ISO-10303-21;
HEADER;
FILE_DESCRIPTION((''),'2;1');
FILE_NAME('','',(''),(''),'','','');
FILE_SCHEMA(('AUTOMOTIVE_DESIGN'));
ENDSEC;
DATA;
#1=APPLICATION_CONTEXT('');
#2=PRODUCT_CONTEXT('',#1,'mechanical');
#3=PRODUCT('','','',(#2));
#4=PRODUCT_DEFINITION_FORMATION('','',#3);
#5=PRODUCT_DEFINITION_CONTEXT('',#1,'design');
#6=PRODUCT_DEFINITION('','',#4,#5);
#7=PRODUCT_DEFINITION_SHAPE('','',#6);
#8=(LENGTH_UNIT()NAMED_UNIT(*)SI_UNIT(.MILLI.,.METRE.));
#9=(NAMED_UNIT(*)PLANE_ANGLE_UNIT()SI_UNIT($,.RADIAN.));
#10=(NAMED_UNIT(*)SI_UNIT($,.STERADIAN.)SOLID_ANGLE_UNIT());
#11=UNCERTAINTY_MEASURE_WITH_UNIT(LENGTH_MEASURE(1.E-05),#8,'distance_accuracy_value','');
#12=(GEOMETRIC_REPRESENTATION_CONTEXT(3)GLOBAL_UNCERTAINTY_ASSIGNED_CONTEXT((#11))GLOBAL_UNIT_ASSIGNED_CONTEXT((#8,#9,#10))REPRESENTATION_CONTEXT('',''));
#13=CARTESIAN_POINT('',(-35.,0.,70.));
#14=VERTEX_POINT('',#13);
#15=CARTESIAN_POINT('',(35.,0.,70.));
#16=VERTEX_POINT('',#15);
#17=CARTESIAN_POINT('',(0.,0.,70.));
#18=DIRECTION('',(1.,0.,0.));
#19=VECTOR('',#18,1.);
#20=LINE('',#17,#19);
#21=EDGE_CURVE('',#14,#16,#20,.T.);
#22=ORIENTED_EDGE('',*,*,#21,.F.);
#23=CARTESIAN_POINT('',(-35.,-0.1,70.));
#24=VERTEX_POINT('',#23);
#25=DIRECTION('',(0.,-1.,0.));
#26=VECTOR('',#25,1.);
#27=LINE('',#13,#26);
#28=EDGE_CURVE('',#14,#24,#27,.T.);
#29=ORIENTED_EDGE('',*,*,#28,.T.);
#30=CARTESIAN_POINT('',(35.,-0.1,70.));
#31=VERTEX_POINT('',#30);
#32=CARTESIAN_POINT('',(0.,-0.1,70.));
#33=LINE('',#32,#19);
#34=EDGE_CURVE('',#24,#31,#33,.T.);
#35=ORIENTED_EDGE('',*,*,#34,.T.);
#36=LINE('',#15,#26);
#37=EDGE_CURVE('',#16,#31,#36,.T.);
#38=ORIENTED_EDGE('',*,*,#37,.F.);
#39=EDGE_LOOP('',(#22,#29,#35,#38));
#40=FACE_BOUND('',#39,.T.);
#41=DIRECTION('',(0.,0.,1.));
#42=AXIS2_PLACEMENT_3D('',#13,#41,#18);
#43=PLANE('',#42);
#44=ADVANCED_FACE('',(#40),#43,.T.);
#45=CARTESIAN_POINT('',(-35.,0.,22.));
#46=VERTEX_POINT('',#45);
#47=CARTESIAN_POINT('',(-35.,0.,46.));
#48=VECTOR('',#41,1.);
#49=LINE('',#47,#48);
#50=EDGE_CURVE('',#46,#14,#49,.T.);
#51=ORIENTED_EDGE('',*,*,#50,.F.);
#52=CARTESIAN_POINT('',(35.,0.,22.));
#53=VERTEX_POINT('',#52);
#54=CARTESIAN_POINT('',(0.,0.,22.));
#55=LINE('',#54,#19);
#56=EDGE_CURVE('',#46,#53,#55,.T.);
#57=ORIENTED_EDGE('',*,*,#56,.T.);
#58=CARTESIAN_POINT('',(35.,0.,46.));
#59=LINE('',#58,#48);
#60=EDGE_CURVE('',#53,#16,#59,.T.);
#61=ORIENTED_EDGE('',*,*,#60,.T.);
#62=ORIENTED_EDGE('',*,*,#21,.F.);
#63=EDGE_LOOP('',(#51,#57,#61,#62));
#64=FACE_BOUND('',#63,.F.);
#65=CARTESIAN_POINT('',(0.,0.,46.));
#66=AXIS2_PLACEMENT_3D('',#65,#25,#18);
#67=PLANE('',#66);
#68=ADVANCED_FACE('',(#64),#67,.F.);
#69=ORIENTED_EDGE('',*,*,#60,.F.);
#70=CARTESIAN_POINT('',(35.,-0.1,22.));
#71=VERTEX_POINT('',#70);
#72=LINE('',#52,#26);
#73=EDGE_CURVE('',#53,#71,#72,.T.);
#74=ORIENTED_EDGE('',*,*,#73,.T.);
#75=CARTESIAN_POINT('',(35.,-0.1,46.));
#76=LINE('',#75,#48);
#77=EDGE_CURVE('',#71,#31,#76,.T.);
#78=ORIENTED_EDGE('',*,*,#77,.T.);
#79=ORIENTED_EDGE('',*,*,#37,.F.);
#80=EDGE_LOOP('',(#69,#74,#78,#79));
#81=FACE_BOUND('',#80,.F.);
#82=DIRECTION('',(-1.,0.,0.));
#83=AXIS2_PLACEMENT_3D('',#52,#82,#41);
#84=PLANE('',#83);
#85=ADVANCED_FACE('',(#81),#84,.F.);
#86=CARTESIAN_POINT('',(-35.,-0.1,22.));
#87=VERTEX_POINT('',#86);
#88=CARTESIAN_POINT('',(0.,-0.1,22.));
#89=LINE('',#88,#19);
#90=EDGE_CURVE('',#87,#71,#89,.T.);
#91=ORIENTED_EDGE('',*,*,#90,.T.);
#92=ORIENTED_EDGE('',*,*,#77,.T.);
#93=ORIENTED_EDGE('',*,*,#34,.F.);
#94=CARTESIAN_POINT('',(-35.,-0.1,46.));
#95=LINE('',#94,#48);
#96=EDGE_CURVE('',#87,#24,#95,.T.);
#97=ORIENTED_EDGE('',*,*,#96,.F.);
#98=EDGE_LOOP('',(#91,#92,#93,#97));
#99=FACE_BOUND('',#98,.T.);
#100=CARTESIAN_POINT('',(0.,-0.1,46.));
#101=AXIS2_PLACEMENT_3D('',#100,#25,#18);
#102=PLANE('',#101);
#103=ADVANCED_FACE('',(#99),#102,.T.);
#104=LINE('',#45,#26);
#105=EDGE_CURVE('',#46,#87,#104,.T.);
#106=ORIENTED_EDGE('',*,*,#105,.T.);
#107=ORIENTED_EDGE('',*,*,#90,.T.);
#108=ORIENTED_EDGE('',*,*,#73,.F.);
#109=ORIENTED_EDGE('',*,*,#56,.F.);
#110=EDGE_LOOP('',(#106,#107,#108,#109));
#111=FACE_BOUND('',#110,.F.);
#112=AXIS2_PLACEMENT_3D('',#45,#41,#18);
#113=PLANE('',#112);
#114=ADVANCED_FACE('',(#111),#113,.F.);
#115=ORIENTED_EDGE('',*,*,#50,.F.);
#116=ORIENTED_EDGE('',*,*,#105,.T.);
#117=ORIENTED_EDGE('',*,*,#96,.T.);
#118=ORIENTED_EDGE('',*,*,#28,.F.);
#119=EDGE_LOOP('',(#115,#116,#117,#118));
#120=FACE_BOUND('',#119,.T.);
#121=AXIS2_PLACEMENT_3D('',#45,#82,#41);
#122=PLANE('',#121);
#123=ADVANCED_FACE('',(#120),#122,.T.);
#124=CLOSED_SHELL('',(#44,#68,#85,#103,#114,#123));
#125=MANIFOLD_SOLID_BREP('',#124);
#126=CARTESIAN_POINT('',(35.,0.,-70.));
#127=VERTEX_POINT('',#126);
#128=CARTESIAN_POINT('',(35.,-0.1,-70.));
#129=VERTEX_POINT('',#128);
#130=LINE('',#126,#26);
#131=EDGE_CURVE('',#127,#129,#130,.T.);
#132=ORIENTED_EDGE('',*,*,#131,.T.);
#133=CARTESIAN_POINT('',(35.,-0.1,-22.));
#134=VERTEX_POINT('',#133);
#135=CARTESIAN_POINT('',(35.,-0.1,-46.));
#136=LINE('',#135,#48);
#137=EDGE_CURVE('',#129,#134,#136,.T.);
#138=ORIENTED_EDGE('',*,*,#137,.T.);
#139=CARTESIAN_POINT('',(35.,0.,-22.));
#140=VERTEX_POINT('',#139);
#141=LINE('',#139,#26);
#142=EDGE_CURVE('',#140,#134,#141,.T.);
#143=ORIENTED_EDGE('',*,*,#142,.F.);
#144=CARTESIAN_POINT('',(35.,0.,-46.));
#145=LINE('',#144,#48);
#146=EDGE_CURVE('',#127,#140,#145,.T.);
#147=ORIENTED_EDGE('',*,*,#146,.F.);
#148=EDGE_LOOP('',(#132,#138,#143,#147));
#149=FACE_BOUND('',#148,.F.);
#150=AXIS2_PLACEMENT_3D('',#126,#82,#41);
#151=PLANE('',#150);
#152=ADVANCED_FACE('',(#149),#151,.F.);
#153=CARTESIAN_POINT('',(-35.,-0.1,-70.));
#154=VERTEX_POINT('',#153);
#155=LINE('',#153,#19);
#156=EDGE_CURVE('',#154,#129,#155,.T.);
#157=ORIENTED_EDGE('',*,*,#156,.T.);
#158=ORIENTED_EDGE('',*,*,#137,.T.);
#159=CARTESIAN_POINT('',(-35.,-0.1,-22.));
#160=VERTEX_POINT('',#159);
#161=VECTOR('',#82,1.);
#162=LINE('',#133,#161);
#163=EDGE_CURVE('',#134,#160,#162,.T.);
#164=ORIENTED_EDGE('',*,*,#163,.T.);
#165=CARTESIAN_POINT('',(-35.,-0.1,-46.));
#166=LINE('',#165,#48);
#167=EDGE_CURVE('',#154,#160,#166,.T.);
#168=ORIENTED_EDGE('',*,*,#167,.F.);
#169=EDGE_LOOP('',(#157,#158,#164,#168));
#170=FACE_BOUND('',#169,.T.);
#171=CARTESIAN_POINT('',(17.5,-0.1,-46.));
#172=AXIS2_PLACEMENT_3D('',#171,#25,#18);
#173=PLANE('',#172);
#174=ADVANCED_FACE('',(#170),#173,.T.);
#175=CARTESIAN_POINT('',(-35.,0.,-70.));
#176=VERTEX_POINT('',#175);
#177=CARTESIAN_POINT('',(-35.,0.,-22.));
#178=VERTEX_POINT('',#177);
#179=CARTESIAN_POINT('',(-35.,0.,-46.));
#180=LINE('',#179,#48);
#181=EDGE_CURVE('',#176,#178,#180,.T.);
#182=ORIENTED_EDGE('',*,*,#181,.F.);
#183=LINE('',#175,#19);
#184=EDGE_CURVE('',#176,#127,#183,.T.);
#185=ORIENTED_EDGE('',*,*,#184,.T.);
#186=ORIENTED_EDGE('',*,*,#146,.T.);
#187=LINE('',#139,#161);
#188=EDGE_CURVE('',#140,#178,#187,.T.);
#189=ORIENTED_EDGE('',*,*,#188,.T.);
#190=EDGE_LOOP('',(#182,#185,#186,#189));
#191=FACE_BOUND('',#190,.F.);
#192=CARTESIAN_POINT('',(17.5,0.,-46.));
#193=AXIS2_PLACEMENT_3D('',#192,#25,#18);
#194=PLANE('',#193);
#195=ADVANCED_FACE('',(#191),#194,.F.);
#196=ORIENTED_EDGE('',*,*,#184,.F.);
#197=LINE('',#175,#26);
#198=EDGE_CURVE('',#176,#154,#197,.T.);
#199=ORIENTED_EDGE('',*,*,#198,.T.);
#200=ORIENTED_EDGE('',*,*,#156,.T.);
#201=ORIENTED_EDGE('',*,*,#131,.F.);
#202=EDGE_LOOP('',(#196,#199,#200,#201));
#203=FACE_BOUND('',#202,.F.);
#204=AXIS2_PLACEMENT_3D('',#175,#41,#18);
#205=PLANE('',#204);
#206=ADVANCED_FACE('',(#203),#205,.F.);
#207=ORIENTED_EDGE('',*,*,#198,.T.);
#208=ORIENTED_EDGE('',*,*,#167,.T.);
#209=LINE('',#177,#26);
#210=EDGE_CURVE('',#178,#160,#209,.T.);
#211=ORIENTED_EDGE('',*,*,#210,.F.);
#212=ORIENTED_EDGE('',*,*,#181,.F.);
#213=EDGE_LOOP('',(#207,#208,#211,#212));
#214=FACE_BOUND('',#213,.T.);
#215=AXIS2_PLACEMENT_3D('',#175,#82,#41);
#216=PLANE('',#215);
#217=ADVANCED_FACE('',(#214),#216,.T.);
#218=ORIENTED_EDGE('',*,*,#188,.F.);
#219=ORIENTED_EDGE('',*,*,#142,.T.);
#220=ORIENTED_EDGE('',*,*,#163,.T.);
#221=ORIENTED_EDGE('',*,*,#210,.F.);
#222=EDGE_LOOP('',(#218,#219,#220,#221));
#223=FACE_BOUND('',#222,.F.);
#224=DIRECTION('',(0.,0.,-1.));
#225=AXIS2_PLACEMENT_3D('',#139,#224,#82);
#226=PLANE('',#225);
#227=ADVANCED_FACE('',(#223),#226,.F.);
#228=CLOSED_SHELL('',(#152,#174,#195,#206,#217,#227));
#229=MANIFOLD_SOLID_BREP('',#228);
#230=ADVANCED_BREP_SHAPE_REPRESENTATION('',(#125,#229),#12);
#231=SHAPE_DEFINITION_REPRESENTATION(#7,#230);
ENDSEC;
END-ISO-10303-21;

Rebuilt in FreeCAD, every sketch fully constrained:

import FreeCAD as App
import Part
import Sketcher
from FreeCAD import Vector
Q = App.Units.Quantity


def add_polygon(sketch, points):
    """Adds a closed chain of lines whose ends are joined by coincident constraints."""
    first, n = sketch.GeometryCount, len(points)
    for a, b in zip(points, points[1:] + points[:1]):
        sketch.addGeometry(Part.LineSegment(App.Vector(*a, 0), App.Vector(*b, 0)), False)
    for i in range(n):
        sketch.addConstraint(Sketcher.Constraint("Coincident", first + i, 2, first + (i + 1) % n, 1))

doc = App.newDocument("Part")
body = doc.addObject("PartDesign::Body", "Body")
body.AllowCompound = True

# Sketch on XZ plane
sketch1 = doc.addObject("Sketcher::SketchObject", "Sketch")
body.addObject(sketch1)
sketch1.AttachmentSupport = (doc.XZ_Plane, [""])
sketch1.MapMode = "FlatFace"
add_polygon(sketch1, [(-35, 70), (-35, 22), (35, 22), (35, 70)])  # lines 0-3
add_polygon(sketch1, [(35, -70), (35, -22), (-35, -22), (-35, -70)])  # lines 4-7
sketch1.addConstraint(Sketcher.Constraint("Vertical", 0))
sketch1.addConstraint(Sketcher.Constraint("Horizontal", 1))
sketch1.addConstraint(Sketcher.Constraint("Vertical", 2))
sketch1.addConstraint(Sketcher.Constraint("Horizontal", 3))
sketch1.addConstraint(Sketcher.Constraint("Vertical", 4))
sketch1.addConstraint(Sketcher.Constraint("Horizontal", 5))
sketch1.addConstraint(Sketcher.Constraint("Vertical", 6))
sketch1.addConstraint(Sketcher.Constraint("Horizontal", 7))
sketch1.addConstraint(Sketcher.Constraint("Symmetric", 0, 2, 4, 2, -1, 1))
sketch1.addConstraint(Sketcher.Constraint("Symmetric", 2, 2, 6, 2, -1, 1))
sketch1.addConstraint(Sketcher.Constraint("Vertical", 2, 2, 4, 2))
sketch1.addConstraint(Sketcher.Constraint("DistanceX", 1, 1, 1, 2, Q("70 mm")))
sketch1.addConstraint(Sketcher.Constraint("DistanceY", 0, 2, 0, 1, Q("48 mm")))
sketch1.addConstraint(Sketcher.Constraint("DistanceY", -1, 1, 0, 2, Q("22 mm")))
pad1 = doc.addObject("PartDesign::Pad", "Pad")
body.addObject(pad1)
pad1.Profile = sketch1
pad1.Length = 0.1

doc.recompute()
